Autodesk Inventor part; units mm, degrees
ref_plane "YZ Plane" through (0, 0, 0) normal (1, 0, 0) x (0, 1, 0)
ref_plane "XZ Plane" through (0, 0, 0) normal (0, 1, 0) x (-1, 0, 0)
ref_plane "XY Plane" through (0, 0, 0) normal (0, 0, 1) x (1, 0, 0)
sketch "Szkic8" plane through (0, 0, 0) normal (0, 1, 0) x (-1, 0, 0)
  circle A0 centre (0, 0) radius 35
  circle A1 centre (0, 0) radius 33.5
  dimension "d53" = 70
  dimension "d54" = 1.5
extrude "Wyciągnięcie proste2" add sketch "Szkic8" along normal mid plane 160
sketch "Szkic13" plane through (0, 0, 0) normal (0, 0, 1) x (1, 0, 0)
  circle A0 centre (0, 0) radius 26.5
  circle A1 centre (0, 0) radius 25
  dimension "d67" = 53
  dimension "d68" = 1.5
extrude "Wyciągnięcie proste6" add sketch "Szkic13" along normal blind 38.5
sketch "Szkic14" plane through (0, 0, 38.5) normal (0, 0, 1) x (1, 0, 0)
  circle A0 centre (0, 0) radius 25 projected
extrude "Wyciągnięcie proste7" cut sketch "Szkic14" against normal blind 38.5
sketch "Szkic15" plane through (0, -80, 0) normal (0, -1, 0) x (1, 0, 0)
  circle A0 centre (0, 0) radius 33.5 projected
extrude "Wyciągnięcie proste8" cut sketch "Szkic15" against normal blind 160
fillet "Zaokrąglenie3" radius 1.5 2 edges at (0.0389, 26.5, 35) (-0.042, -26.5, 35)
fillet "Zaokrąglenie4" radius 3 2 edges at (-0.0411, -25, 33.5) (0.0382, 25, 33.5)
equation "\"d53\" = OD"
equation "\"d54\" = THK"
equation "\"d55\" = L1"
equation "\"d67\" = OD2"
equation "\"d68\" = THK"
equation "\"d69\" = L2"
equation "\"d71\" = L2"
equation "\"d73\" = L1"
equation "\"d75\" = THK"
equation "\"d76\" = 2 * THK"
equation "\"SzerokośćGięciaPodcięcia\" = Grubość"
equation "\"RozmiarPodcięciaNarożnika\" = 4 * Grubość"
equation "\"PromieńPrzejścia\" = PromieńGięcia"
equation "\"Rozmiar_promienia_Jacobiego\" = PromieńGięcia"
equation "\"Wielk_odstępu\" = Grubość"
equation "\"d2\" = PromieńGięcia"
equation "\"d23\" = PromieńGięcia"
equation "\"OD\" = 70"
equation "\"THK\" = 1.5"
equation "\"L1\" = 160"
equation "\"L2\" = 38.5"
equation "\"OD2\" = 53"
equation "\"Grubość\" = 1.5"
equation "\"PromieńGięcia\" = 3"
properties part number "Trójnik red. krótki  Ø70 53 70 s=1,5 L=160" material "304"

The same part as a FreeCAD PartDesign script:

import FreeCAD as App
import Part
import Sketcher
Q = App.Units.Quantity


def edges_at(feature, points):
    """Names of the edges that pass closest to the given points."""
    edges = feature.Shape.Edges
    near = lambda p: min(range(len(edges)), key=lambda i: edges[i].distToShape(Part.Vertex(*p))[0])
    return sorted({f"Edge{near(p) + 1}" for p in points})

doc = App.newDocument("Part")
body = doc.addObject("PartDesign::Body", "Body")

# Sketch on XZ plane
sketch1 = doc.addObject("Sketcher::SketchObject", "Sketch")
body.addObject(sketch1)
sketch1.AttachmentSupport = (doc.XZ_Plane, [""])
sketch1.MapMode = "FlatFace"
sketch1.addGeometry(Part.Circle(App.Vector(0, 0, 0), App.Vector(0, 0, 1), 35), False)
sketch1.addGeometry(Part.Circle(App.Vector(0, 0, 0), App.Vector(0, 0, 1), 33.5), False)
sketch1.addConstraint(Sketcher.Constraint("Coincident", 0, 3, -1, 1))
sketch1.addConstraint(Sketcher.Constraint("Coincident", 1, 3, -1, 1))
sketch1.addConstraint(Sketcher.Constraint("Diameter", 0, Q("70 mm")))
sketch1.addConstraint(Sketcher.Constraint("Diameter", 1, Q("67 mm")))
pad1 = doc.addObject("PartDesign::Pad", "Pad")
body.addObject(pad1)
pad1.Profile = sketch1
pad1.Length = 160
pad1.Midplane = True

# Sketch on XY plane
sketch2 = doc.addObject("Sketcher::SketchObject", "Sketch001")
body.addObject(sketch2)
sketch2.AttachmentSupport = (doc.XY_Plane, [""])
sketch2.MapMode = "FlatFace"
sketch2.addGeometry(Part.Circle(App.Vector(0, 0, 0), App.Vector(0, 0, 1), 26.5), False)
sketch2.addGeometry(Part.Circle(App.Vector(0, 0, 0), App.Vector(0, 0, 1), 25), False)
sketch2.addConstraint(Sketcher.Constraint("Coincident", 0, 3, -1, 1))
sketch2.addConstraint(Sketcher.Constraint("Coincident", 1, 3, -1, 1))
sketch2.addConstraint(Sketcher.Constraint("Diameter", 0, Q("53 mm")))
sketch2.addConstraint(Sketcher.Constraint("Diameter", 1, Q("50 mm")))
pad2 = doc.addObject("PartDesign::Pad", "Pad001")
body.addObject(pad2)
pad2.Profile = sketch2
pad2.Length = 38.5

# Sketch on XY plane
sketch3 = doc.addObject("Sketcher::SketchObject", "Sketch002")
body.addObject(sketch3)
sketch3.AttachmentSupport = (doc.XY_Plane, [""])
sketch3.MapMode = "FlatFace"
sketch3.AttachmentOffset = App.Placement(App.Vector(0, 0, 38.5), App.Rotation())
sketch3.addGeometry(Part.Circle(App.Vector(0, 0, 0), App.Vector(0, 0, 1), 25), False)
sketch3.addConstraint(Sketcher.Constraint("Coincident", 0, 3, -1, 1))
sketch3.addConstraint(Sketcher.Constraint("Diameter", 0, Q("50 mm")))
pocket1 = doc.addObject("PartDesign::Pocket", "Pocket")
body.addObject(pocket1)
pocket1.Profile = sketch3
pocket1.Length = 38.5

# Sketch on XZ plane
sketch4 = doc.addObject("Sketcher::SketchObject", "Sketch003")
body.addObject(sketch4)
sketch4.AttachmentSupport = (doc.XZ_Plane, [""])
sketch4.MapMode = "FlatFace"
sketch4.AttachmentOffset = App.Placement(App.Vector(0, 0, 80), App.Rotation())
sketch4.addGeometry(Part.Circle(App.Vector(0, 0, 0), App.Vector(0, 0, 1), 33.5), False)
sketch4.addConstraint(Sketcher.Constraint("Coincident", 0, 3, -1, 1))
sketch4.addConstraint(Sketcher.Constraint("Diameter", 0, Q("67 mm")))
pocket2 = doc.addObject("PartDesign::Pocket", "Pocket001")
body.addObject(pocket2)
pocket2.Profile = sketch4
pocket2.Length = 160
doc.recompute()

fillet = doc.addObject("PartDesign::Fillet", "Fillet")
body.addObject(fillet)
fillet.Base = (pocket2, edges_at(pocket2, [(0.039, 26.5, 35), (-0.042, -26.5, 35)]))
fillet.Radius = 1.5
doc.recompute()

fillet2 = doc.addObject("PartDesign::Fillet", "Fillet001")
body.addObject(fillet2)
fillet2.Base = (fillet, edges_at(fillet, [(-0.041, -25, 33.5), (0.038, 25, 33.5)]))
fillet2.Radius = 3

doc.recompute()
